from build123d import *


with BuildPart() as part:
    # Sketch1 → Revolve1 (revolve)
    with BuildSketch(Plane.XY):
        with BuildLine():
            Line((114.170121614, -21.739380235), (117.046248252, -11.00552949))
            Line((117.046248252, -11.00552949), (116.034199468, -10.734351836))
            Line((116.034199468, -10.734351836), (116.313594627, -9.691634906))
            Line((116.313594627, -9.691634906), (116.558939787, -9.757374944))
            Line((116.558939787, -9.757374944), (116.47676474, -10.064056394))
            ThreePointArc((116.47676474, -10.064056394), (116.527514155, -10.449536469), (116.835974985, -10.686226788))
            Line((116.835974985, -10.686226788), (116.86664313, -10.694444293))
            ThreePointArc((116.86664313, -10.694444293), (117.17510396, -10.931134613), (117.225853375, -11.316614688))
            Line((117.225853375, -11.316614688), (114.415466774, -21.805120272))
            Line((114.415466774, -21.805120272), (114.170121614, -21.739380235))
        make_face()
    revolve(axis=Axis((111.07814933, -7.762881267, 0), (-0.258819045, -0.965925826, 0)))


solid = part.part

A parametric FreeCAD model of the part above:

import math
import FreeCAD as App
import Part
import Sketcher
from FreeCAD import Vector
Q = App.Units.Quantity

doc = App.newDocument("Part")
body = doc.addObject("PartDesign::Body", "Body")

# Sketch on XY plane
sketch1 = doc.addObject("Sketcher::SketchObject", "Sketch")
body.addObject(sketch1)
sketch1.AttachmentSupport = (doc.XY_Plane, [""])
sketch1.MapMode = "FlatFace"
sketch1.addGeometry(Part.LineSegment(Vector(117.046, -11.006, 0), Vector(114.17, -21.739, 0)), False)
sketch1.addGeometry(Part.LineSegment(Vector(114.17, -21.739, 0), Vector(114.415, -21.805, 0)), False)
sketch1.addGeometry(Part.LineSegment(Vector(114.415, -21.805, 0), Vector(117.226, -11.317, 0)), False)
sketch1.addGeometry(Part.ArcOfCircle(Part.Circle(Vector(116.735, -11.185, 0), Vector(0, 0, 1), 0.508), math.radians(-15), math.radians(75)), False)
sketch1.addGeometry(Part.LineSegment(Vector(116.867, -10.694, 0), Vector(116.836, -10.686, 0)), False)
sketch1.addGeometry(Part.ArcOfCircle(Part.Circle(Vector(116.967, -10.196, 0), Vector(0, 0, 1), 0.508), math.radians(165), math.radians(255)), False)
sketch1.addGeometry(Part.LineSegment(Vector(116.477, -10.064, 0), Vector(116.559, -9.757, 0)), False)
sketch1.addGeometry(Part.LineSegment(Vector(116.559, -9.757, 0), Vector(116.314, -9.692, 0)), False)
sketch1.addGeometry(Part.LineSegment(Vector(116.314, -9.692, 0), Vector(116.034, -10.734, 0)), False)
sketch1.addGeometry(Part.LineSegment(Vector(116.034, -10.734, 0), Vector(117.046, -11.006, 0)), False)
sketch1.addGeometry(Part.LineSegment(Vector(110.947, -8.254, 0), Vector(107.791, -20.03, 0)), True)  # axis
sketch1.addConstraint(Sketcher.Constraint("Coincident", 0, 2, 1, 1))
sketch1.addConstraint(Sketcher.Constraint("Coincident", 1, 2, 2, 1))
sketch1.addConstraint(Sketcher.Constraint("Tangent", 2, 2, 3, 1))
sketch1.addConstraint(Sketcher.Constraint("Tangent", 3, 2, 4, 1))
sketch1.addConstraint(Sketcher.Constraint("Tangent", 4, 2, 5, 2))
sketch1.addConstraint(Sketcher.Constraint("Tangent", 5, 1, 6, 1))
sketch1.addConstraint(Sketcher.Constraint("Coincident", 6, 2, 7, 1))
sketch1.addConstraint(Sketcher.Constraint("Coincident", 7, 2, 8, 1))
sketch1.addConstraint(Sketcher.Constraint("Coincident", 8, 2, 9, 1))
sketch1.addConstraint(Sketcher.Constraint("Coincident", 9, 2, 0, 1))
sketch1.addConstraint(Sketcher.Constraint("Equal", 3, 5))
sketch1.addConstraint(Sketcher.Constraint("Perpendicular", 0, 1))
sketch1.addConstraint(Sketcher.Constraint("Perpendicular", 1, 2))
sketch1.addConstraint(Sketcher.Constraint("Perpendicular", 2, 4))
sketch1.addConstraint(Sketcher.Constraint("Perpendicular", 4, 6))
sketch1.addConstraint(Sketcher.Constraint("Perpendicular", 6, 7))
sketch1.addConstraint(Sketcher.Constraint("Perpendicular", 7, 8))
sketch1.addConstraint(Sketcher.Constraint("Perpendicular", 8, 9))
sketch1.addConstraint(Sketcher.Constraint("Perpendicular", 9, 10))
sketch1.addConstraint(Sketcher.Constraint("Equal", 1, 7))
sketch1.addConstraint(Sketcher.Constraint("Radius", 3, Q("0.02 in")))
sketch1.addConstraint(Sketcher.Constraint("Angle", 0, Q("-105 deg")))
sketch1.addConstraint(Sketcher.Constraint("Distance", 1, Q("0.01 in")))
sketch1.addConstraint(Sketcher.Constraint("Distance", 10, Q("0.48 in")))
sketch1.addConstraint(Sketcher.Constraint("Distance", 0, Q("0.4375 in")))
sketch1.addConstraint(Sketcher.Constraint("Distance", 2, Q("0.4275 in")))
sketch1.addConstraint(Sketcher.Constraint("Distance", 6, Q("0.0125 in")))
sketch1.addConstraint(Sketcher.Constraint("DistanceX", 10, 2, 1, 2, Q("0.2608 in")))
sketch1.addConstraint(Sketcher.Constraint("DistanceX", -1, 1, 8, 2, 116.034199))
sketch1.addConstraint(Sketcher.Constraint("DistanceY", 3, 3, 5, 3, 0.989598))
sketch1.addConstraint(Sketcher.Constraint("DistanceY", 0, 2, -1, 1, 21.73938))
sketch1.addConstraint(Sketcher.Constraint("DistanceY", 10, 1, -1, 1, 8.253572))
revolution = doc.addObject("PartDesign::Revolution", "Revolution")
body.addObject(revolution)
revolution.Profile = sketch1
revolution.ReferenceAxis = (sketch1, ["Axis0"])
revolution.Angle = 360

doc.recompute()
